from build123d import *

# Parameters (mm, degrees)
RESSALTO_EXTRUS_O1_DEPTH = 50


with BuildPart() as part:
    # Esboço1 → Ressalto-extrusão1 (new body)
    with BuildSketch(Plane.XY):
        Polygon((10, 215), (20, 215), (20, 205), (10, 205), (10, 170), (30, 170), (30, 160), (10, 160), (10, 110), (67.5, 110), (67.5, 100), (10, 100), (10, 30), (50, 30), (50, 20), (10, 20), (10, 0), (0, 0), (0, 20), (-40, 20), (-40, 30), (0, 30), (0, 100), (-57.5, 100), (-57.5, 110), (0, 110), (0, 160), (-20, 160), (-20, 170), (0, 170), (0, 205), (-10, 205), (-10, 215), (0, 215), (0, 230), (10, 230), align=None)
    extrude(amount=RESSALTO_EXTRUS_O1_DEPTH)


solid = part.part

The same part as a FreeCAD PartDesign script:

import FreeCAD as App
import Part
import Sketcher
Q = App.Units.Quantity

doc = App.newDocument("Part")
body = doc.addObject("PartDesign::Body", "Body")

sketch1 = body.newObject("Sketcher::SketchObject", "Sketch")
sketch1.AttachmentSupport = (doc.getObject("XY_Plane"), [""])
sketch1.MapMode = "FlatFace"
sketch1.addGeometry(Part.LineSegment(App.Vector(20, 215, 0), App.Vector(10, 215, 0)), False)
sketch1.addGeometry(Part.LineSegment(App.Vector(10, 215, 0), App.Vector(10, 230, 0)), False)
sketch1.addGeometry(Part.LineSegment(App.Vector(10, 230, 0), App.Vector(0, 230, 0)), False)
sketch1.addGeometry(Part.LineSegment(App.Vector(0, 230, 0), App.Vector(0, 215, 0)), False)
sketch1.addGeometry(Part.LineSegment(App.Vector(0, 215, 0), App.Vector(-10, 215, 0)), False)
sketch1.addGeometry(Part.LineSegment(App.Vector(-10, 215, 0), App.Vector(-10, 205, 0)), False)
sketch1.addGeometry(Part.LineSegment(App.Vector(-10, 205, 0), App.Vector(0, 205, 0)), False)
sketch1.addGeometry(Part.LineSegment(App.Vector(0, 205, 0), App.Vector(0, 170, 0)), False)
sketch1.addGeometry(Part.LineSegment(App.Vector(0, 170, 0), App.Vector(-20, 170, 0)), False)
sketch1.addGeometry(Part.LineSegment(App.Vector(-20, 170, 0), App.Vector(-20, 160, 0)), False)
sketch1.addGeometry(Part.LineSegment(App.Vector(-20, 160, 0), App.Vector(0, 160, 0)), False)
sketch1.addGeometry(Part.LineSegment(App.Vector(0, 160, 0), App.Vector(0, 110, 0)), False)
sketch1.addGeometry(Part.LineSegment(App.Vector(0, 110, 0), App.Vector(-57.5, 110, 0)), False)
sketch1.addGeometry(Part.LineSegment(App.Vector(-57.5, 110, 0), App.Vector(-57.5, 100, 0)), False)
sketch1.addGeometry(Part.LineSegment(App.Vector(-57.5, 100, 0), App.Vector(0, 100, 0)), False)
sketch1.addGeometry(Part.LineSegment(App.Vector(0, 100, 0), App.Vector(0, 30, 0)), False)
sketch1.addGeometry(Part.LineSegment(App.Vector(0, 30, 0), App.Vector(-40, 30, 0)), False)
sketch1.addGeometry(Part.LineSegment(App.Vector(-40, 30, 0), App.Vector(-40, 20, 0)), False)
sketch1.addGeometry(Part.LineSegment(App.Vector(-40, 20, 0), App.Vector(0, 20, 0)), False)
sketch1.addGeometry(Part.LineSegment(App.Vector(0, 20, 0), App.Vector(0, 0, 0)), False)
sketch1.addGeometry(Part.LineSegment(App.Vector(0, 0, 0), App.Vector(10, 0, 0)), False)
sketch1.addGeometry(Part.LineSegment(App.Vector(10, 0, 0), App.Vector(10, 20, 0)), False)
sketch1.addGeometry(Part.LineSegment(App.Vector(10, 20, 0), App.Vector(50, 20, 0)), False)
sketch1.addGeometry(Part.LineSegment(App.Vector(50, 20, 0), App.Vector(50, 30, 0)), False)
sketch1.addGeometry(Part.LineSegment(App.Vector(50, 30, 0), App.Vector(10, 30, 0)), False)
sketch1.addGeometry(Part.LineSegment(App.Vector(10, 30, 0), App.Vector(10, 100, 0)), False)
sketch1.addGeometry(Part.LineSegment(App.Vector(10, 100, 0), App.Vector(67.5, 100, 0)), False)
sketch1.addGeometry(Part.LineSegment(App.Vector(67.5, 100, 0), App.Vector(67.5, 110, 0)), False)
sketch1.addGeometry(Part.LineSegment(App.Vector(67.5, 110, 0), App.Vector(10, 110, 0)), False)
sketch1.addGeometry(Part.LineSegment(App.Vector(10, 110, 0), App.Vector(10, 160, 0)), False)
sketch1.addGeometry(Part.LineSegment(App.Vector(10, 160, 0), App.Vector(30, 160, 0)), False)
sketch1.addGeometry(Part.LineSegment(App.Vector(30, 160, 0), App.Vector(30, 170, 0)), False)
sketch1.addGeometry(Part.LineSegment(App.Vector(30, 170, 0), App.Vector(10, 170, 0)), False)
sketch1.addGeometry(Part.LineSegment(App.Vector(10, 170, 0), App.Vector(10, 205, 0)), False)
sketch1.addGeometry(Part.LineSegment(App.Vector(10, 205, 0), App.Vector(20, 205, 0)), False)
sketch1.addGeometry(Part.LineSegment(App.Vector(20, 205, 0), App.Vector(20, 215, 0)), False)
sketch1.addConstraint(Sketcher.Constraint("Coincident", 0, 2, 1, 1))
sketch1.addConstraint(Sketcher.Constraint("Coincident", 1, 2, 2, 1))
sketch1.addConstraint(Sketcher.Constraint("Coincident", 2, 2, 3, 1))
sketch1.addConstraint(Sketcher.Constraint("Coincident", 3, 2, 4, 1))
sketch1.addConstraint(Sketcher.Constraint("Coincident", 4, 2, 5, 1))
sketch1.addConstraint(Sketcher.Constraint("Coincident", 5, 2, 6, 1))
sketch1.addConstraint(Sketcher.Constraint("Coincident", 6, 2, 7, 1))
sketch1.addConstraint(Sketcher.Constraint("Coincident", 7, 2, 8, 1))
sketch1.addConstraint(Sketcher.Constraint("Coincident", 8, 2, 9, 1))
sketch1.addConstraint(Sketcher.Constraint("Coincident", 9, 2, 10, 1))
sketch1.addConstraint(Sketcher.Constraint("Coincident", 10, 2, 11, 1))
sketch1.addConstraint(Sketcher.Constraint("Coincident", 11, 2, 12, 1))
sketch1.addConstraint(Sketcher.Constraint("Coincident", 12, 2, 13, 1))
sketch1.addConstraint(Sketcher.Constraint("Coincident", 13, 2, 14, 1))
sketch1.addConstraint(Sketcher.Constraint("Coincident", 14, 2, 15, 1))
sketch1.addConstraint(Sketcher.Constraint("Coincident", 15, 2, 16, 1))
sketch1.addConstraint(Sketcher.Constraint("Coincident", 16, 2, 17, 1))
sketch1.addConstraint(Sketcher.Constraint("Coincident", 17, 2, 18, 1))
sketch1.addConstraint(Sketcher.Constraint("Coincident", 18, 2, 19, 1))
sketch1.addConstraint(Sketcher.Constraint("Coincident", 19, 2, 20, 1))
sketch1.addConstraint(Sketcher.Constraint("Coincident", 20, 2, 21, 1))
sketch1.addConstraint(Sketcher.Constraint("Coincident", 21, 2, 22, 1))
sketch1.addConstraint(Sketcher.Constraint("Coincident", 22, 2, 23, 1))
sketch1.addConstraint(Sketcher.Constraint("Coincident", 23, 2, 24, 1))
sketch1.addConstraint(Sketcher.Constraint("Coincident", 24, 2, 25, 1))
sketch1.addConstraint(Sketcher.Constraint("Coincident", 25, 2, 26, 1))
sketch1.addConstraint(Sketcher.Constraint("Coincident", 26, 2, 27, 1))
sketch1.addConstraint(Sketcher.Constraint("Coincident", 27, 2, 28, 1))
sketch1.addConstraint(Sketcher.Constraint("Coincident", 28, 2, 29, 1))
sketch1.addConstraint(Sketcher.Constraint("Coincident", 29, 2, 30, 1))
sketch1.addConstraint(Sketcher.Constraint("Coincident", 30, 2, 31, 1))
sketch1.addConstraint(Sketcher.Constraint("Coincident", 31, 2, 32, 1))
sketch1.addConstraint(Sketcher.Constraint("Coincident", 32, 2, 33, 1))
sketch1.addConstraint(Sketcher.Constraint("Coincident", 33, 2, 34, 1))
sketch1.addConstraint(Sketcher.Constraint("Coincident", 34, 2, 35, 1))
sketch1.addConstraint(Sketcher.Constraint("Coincident", 35, 2, 0, 1))
sketch1.addConstraint(Sketcher.Constraint("Horizontal", 0))
sketch1.addConstraint(Sketcher.Constraint("Vertical", 1))
sketch1.addConstraint(Sketcher.Constraint("Horizontal", 2))
sketch1.addConstraint(Sketcher.Constraint("Vertical", 3))
sketch1.addConstraint(Sketcher.Constraint("Horizontal", 4))
sketch1.addConstraint(Sketcher.Constraint("Vertical", 5))
sketch1.addConstraint(Sketcher.Constraint("Horizontal", 6))
sketch1.addConstraint(Sketcher.Constraint("Vertical", 7))
sketch1.addConstraint(Sketcher.Constraint("Horizontal", 8))
sketch1.addConstraint(Sketcher.Constraint("Vertical", 9))
sketch1.addConstraint(Sketcher.Constraint("Horizontal", 10))
sketch1.addConstraint(Sketcher.Constraint("Vertical", 11))
sketch1.addConstraint(Sketcher.Constraint("Horizontal", 12))
sketch1.addConstraint(Sketcher.Constraint("Vertical", 13))
sketch1.addConstraint(Sketcher.Constraint("Horizontal", 14))
sketch1.addConstraint(Sketcher.Constraint("Vertical", 15))
sketch1.addConstraint(Sketcher.Constraint("Horizontal", 16))
sketch1.addConstraint(Sketcher.Constraint("Vertical", 17))
sketch1.addConstraint(Sketcher.Constraint("Horizontal", 18))
sketch1.addConstraint(Sketcher.Constraint("Vertical", 19))
sketch1.addConstraint(Sketcher.Constraint("Horizontal", 20))
sketch1.addConstraint(Sketcher.Constraint("Vertical", 21))
sketch1.addConstraint(Sketcher.Constraint("Horizontal", 22))
sketch1.addConstraint(Sketcher.Constraint("Vertical", 23))
sketch1.addConstraint(Sketcher.Constraint("Horizontal", 24))
sketch1.addConstraint(Sketcher.Constraint("Vertical", 25))
sketch1.addConstraint(Sketcher.Constraint("Horizontal", 26))
sketch1.addConstraint(Sketcher.Constraint("Vertical", 27))
sketch1.addConstraint(Sketcher.Constraint("Horizontal", 28))
sketch1.addConstraint(Sketcher.Constraint("Vertical", 29))
sketch1.addConstraint(Sketcher.Constraint("Horizontal", 30))
sketch1.addConstraint(Sketcher.Constraint("Vertical", 31))
sketch1.addConstraint(Sketcher.Constraint("Horizontal", 32))
sketch1.addConstraint(Sketcher.Constraint("Vertical", 33))
sketch1.addConstraint(Sketcher.Constraint("Horizontal", 34))
sketch1.addConstraint(Sketcher.Constraint("Vertical", 35))
sketch1.addConstraint(Sketcher.Constraint("Coincident", 19, 2, -1, 1))
sketch1.addConstraint(Sketcher.Constraint("Symmetric", 0, 2, 4, 2, -2))
sketch1.addConstraint(Sketcher.Constraint("Symmetric", 5, 2, 33, 2, -2))
sketch1.addConstraint(Sketcher.Constraint("PointOnObject", 2, 2, -2))
sketch1.addConstraint(Sketcher.Constraint("PointOnObject", 6, 2, -2))
sketch1.addConstraint(Sketcher.Constraint("PointOnObject", 10, 2, -2))
sketch1.addConstraint(Sketcher.Constraint("PointOnObject", 14, 2, -2))
sketch1.addConstraint(Sketcher.Constraint("Horizontal", 18, 2, 21, 2))
sketch1.addConstraint(Sketcher.Constraint("Horizontal", 16, 2, 23, 2))
sketch1.addConstraint(Sketcher.Constraint("Horizontal", 14, 2, 25, 2))
sketch1.addConstraint(Sketcher.Constraint("Horizontal", 12, 2, 27, 2))
sketch1.addConstraint(Sketcher.Constraint("Horizontal", 10, 2, 29, 2))
sketch1.addConstraint(Sketcher.Constraint("Horizontal", 8, 2, 31, 2))
sketch1.addConstraint(Sketcher.Constraint("Vertical", 1, 2, 20, 2))
sketch1.addConstraint(Sketcher.Constraint("Vertical", 21, 2, 24, 2))
sketch1.addConstraint(Sketcher.Constraint("Vertical", 25, 2, 28, 2))
sketch1.addConstraint(Sketcher.Constraint("Equal", 0, 2))
sketch1.addConstraint(Sketcher.Constraint("Equal", 18, 22))
sketch1.addConstraint(Sketcher.Constraint("Equal", 14, 26))
sketch1.addConstraint(Sketcher.Constraint("Equal", 10, 30))
sketch1.addConstraint(Sketcher.Constraint("Equal", 34, 5))
sketch1.addConstraint(Sketcher.Constraint("Equal", 5, 9))
sketch1.addConstraint(Sketcher.Constraint("Equal", 9, 13))
sketch1.addConstraint(Sketcher.Constraint("Equal", 13, 17))
sketch1.addConstraint(Sketcher.Constraint("Equal", 32, 19))
sketch1.addConstraint(Sketcher.Constraint("DistanceX", 0, 2, 0, 1, Q("10 mm")))
sketch1.addConstraint(Sketcher.Constraint("DistanceX", 8, 2, 8, 1, Q("20 mm")))
sketch1.addConstraint(Sketcher.Constraint("DistanceX", 16, 2, 16, 1, Q("40 mm")))
sketch1.addConstraint(Sketcher.Constraint("DistanceY", 1, 1, 1, 2, Q("15 mm")))
sketch1.addConstraint(Sketcher.Constraint("DistanceY", 7, 2, 7, 1, Q("35 mm")))
sketch1.addConstraint(Sketcher.Constraint("DistanceY", 11, 2, 11, 1, Q("50 mm")))
sketch1.addConstraint(Sketcher.Constraint("DistanceY", 15, 2, 15, 1, Q("70 mm")))
sketch1.addConstraint(Sketcher.Constraint("DistanceX", 12, 2, 12, 1, Q("57.5 mm")))
pad1 = body.newObject("PartDesign::Pad", "Pad")
pad1.Profile = sketch1
pad1.Length = 50

doc.recompute()
